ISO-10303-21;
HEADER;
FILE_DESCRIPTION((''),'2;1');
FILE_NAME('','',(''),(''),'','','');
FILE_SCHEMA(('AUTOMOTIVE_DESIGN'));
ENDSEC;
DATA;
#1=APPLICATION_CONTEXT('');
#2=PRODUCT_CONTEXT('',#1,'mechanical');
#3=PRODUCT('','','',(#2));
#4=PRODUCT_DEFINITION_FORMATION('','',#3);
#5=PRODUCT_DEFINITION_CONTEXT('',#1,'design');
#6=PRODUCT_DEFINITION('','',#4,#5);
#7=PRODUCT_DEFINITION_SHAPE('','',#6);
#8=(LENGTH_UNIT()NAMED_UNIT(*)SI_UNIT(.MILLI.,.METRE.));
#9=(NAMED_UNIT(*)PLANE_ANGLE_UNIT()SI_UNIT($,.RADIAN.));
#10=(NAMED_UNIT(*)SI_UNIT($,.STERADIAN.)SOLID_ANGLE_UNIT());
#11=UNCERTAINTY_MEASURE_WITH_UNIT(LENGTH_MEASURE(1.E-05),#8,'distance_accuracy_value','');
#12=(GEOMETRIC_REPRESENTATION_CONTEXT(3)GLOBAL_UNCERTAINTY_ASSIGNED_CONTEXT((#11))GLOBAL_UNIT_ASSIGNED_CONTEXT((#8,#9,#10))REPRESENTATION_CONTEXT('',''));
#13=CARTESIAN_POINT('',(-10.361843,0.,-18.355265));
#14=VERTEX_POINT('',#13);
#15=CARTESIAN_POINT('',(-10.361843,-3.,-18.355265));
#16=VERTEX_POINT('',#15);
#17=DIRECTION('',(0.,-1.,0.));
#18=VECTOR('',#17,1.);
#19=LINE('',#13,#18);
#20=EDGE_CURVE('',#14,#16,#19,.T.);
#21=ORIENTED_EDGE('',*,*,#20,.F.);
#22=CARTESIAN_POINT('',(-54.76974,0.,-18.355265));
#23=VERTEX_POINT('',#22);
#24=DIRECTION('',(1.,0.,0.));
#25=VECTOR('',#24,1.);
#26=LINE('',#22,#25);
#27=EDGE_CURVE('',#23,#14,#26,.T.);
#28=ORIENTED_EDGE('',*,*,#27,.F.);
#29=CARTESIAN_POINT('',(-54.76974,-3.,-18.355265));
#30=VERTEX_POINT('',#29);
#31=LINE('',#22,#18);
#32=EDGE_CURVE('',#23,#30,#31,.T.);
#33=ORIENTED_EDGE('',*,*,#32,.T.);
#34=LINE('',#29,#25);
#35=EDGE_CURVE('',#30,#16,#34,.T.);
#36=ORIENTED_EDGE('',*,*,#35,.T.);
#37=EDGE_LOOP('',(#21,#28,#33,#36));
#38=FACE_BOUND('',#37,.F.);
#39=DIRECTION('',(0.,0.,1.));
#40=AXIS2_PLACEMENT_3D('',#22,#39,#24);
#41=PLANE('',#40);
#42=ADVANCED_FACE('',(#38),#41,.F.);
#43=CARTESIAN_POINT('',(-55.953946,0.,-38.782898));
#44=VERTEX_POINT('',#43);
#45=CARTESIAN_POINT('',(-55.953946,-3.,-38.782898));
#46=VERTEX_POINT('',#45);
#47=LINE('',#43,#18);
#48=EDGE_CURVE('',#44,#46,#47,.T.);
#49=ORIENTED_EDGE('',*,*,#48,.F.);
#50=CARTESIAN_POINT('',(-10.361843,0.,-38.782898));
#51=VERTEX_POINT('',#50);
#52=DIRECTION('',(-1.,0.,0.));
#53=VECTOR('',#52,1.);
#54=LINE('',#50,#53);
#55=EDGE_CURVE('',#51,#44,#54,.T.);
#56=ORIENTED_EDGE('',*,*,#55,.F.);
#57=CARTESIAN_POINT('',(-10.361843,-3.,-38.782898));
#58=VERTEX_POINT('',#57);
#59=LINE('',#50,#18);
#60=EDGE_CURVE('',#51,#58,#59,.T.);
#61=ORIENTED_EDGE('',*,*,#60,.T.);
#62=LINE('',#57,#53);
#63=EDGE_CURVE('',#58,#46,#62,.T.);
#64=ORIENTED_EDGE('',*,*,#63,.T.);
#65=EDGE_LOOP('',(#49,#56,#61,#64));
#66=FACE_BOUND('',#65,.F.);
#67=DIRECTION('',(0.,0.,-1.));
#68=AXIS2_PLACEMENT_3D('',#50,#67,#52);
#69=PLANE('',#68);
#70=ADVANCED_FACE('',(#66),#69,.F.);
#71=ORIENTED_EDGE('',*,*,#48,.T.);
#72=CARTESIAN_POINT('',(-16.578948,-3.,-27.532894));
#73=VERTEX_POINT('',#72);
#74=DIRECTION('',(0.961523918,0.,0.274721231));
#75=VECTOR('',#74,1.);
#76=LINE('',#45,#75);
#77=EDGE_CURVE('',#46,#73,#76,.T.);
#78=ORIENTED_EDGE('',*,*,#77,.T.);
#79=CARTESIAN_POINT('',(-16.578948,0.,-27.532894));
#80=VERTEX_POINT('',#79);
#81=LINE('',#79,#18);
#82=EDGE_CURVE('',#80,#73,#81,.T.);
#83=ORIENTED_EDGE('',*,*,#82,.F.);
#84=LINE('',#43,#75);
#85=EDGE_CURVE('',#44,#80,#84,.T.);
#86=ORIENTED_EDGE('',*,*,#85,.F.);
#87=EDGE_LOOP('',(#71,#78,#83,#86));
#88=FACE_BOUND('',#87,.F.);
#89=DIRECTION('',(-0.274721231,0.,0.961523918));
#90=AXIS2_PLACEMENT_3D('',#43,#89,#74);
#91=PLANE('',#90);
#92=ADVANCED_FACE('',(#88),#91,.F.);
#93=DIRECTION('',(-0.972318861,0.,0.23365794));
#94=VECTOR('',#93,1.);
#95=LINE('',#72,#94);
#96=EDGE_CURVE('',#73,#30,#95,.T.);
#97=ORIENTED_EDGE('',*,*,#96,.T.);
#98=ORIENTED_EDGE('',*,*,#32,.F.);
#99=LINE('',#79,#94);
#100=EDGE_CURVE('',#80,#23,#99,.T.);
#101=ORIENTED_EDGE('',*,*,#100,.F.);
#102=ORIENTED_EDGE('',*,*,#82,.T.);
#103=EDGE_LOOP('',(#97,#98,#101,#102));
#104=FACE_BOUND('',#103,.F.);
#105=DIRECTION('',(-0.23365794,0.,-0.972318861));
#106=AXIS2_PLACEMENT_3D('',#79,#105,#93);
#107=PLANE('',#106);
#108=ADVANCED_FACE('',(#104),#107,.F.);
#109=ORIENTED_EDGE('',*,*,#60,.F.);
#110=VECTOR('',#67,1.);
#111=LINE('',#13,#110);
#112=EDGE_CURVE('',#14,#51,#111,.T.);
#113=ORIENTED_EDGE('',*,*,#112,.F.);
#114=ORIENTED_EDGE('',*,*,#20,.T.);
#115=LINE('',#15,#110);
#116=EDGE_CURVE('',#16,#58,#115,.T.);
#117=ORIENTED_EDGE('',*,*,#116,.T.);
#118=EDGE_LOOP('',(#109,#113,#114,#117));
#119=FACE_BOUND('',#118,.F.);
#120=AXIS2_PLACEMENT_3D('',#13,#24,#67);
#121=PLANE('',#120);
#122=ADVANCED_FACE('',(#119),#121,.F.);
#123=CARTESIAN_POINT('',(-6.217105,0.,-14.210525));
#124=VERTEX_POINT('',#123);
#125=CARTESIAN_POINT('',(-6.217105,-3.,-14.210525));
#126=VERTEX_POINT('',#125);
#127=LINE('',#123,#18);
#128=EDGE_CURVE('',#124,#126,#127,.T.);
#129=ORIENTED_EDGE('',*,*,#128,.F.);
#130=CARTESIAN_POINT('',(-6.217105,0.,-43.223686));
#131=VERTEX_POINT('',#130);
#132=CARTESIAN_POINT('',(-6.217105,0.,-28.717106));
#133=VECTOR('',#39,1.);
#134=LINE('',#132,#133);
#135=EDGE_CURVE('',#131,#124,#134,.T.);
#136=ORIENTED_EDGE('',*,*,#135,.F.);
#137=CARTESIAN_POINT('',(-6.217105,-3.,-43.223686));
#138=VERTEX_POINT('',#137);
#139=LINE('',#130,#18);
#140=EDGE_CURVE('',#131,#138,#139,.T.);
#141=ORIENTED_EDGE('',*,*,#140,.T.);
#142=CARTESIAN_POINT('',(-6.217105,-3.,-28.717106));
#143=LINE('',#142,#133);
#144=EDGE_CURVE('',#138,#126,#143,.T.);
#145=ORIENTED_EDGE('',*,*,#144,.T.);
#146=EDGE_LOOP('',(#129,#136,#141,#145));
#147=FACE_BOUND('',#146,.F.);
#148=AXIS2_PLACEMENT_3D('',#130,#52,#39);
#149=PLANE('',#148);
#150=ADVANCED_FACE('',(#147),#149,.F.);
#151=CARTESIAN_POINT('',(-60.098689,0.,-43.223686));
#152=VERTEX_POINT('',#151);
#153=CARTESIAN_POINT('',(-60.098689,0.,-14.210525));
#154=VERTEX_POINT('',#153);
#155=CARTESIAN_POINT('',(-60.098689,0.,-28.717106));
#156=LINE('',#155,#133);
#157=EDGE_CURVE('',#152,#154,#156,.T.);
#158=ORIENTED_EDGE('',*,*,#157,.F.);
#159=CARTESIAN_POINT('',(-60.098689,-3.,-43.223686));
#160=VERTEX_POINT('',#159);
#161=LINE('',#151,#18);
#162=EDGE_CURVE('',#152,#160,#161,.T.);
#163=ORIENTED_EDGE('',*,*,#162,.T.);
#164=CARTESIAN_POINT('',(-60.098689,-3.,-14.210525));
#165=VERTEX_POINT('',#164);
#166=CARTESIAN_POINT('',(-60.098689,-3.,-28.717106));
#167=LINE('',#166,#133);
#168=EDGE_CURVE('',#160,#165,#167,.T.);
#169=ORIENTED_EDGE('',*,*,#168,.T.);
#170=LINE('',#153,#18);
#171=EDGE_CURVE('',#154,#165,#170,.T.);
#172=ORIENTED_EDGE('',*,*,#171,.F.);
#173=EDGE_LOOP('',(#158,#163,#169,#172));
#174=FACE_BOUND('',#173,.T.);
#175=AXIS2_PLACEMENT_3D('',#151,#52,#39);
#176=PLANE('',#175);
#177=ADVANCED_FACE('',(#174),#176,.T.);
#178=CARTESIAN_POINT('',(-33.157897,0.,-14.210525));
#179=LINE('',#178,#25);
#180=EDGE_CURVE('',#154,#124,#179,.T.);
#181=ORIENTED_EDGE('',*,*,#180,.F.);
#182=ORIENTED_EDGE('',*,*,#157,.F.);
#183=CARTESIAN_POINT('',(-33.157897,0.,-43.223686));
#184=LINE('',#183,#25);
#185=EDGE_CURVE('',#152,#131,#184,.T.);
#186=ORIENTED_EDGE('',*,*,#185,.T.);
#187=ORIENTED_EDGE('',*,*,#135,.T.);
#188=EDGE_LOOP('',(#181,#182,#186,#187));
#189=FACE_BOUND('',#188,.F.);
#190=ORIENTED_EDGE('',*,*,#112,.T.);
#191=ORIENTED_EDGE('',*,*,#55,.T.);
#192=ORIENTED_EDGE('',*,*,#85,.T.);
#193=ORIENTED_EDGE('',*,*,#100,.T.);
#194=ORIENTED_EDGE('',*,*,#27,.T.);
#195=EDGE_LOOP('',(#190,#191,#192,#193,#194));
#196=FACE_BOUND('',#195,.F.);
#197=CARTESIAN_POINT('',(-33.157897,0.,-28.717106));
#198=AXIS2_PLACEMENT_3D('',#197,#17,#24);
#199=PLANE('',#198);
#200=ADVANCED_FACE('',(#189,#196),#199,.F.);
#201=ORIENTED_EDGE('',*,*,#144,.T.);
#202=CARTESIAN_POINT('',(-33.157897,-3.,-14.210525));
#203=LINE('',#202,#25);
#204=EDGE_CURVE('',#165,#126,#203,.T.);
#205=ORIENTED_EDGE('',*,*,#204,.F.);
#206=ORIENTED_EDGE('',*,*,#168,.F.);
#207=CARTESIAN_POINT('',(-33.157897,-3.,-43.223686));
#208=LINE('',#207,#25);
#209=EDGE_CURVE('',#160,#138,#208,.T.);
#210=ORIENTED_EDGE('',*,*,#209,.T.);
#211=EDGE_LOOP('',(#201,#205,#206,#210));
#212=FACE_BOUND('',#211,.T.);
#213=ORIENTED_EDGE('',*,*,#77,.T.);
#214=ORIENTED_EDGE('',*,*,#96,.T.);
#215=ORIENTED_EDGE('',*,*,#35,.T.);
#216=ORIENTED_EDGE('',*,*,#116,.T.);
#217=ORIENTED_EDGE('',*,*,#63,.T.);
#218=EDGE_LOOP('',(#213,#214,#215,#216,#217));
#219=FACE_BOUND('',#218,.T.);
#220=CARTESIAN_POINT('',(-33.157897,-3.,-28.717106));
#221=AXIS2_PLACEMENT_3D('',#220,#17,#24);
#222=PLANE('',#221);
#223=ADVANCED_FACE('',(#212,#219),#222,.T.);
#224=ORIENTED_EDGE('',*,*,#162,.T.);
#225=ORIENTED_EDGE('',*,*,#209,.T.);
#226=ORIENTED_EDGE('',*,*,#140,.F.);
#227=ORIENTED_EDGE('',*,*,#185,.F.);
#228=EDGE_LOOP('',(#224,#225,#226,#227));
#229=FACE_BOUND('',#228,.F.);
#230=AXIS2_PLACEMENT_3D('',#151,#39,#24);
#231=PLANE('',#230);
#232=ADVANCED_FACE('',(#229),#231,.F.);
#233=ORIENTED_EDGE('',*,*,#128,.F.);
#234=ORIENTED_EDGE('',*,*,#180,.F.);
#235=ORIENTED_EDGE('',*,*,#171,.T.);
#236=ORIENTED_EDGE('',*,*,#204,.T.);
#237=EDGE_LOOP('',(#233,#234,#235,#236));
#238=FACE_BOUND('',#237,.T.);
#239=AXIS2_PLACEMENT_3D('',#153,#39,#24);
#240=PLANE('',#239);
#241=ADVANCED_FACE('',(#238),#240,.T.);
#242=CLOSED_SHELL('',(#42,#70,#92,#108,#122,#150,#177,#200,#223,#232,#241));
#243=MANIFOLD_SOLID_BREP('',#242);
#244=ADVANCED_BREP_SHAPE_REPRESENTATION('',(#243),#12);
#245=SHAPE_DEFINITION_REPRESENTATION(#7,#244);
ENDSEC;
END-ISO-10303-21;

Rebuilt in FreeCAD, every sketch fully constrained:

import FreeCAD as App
import Part
import Sketcher

V = App.Vector
Q = App.Units.Quantity


def add_polygon(sketch, points):
    """Adds a closed chain of lines whose ends are joined by coincident constraints."""
    first, n = sketch.GeometryCount, len(points)
    for a, b in zip(points, points[1:] + points[:1]):
        sketch.addGeometry(Part.LineSegment(App.Vector(*a, 0), App.Vector(*b, 0)), False)
    for i in range(n):
        sketch.addConstraint(Sketcher.Constraint("Coincident", first + i, 2, first + (i + 1) % n, 1))

doc = App.newDocument("Part")
body = doc.addObject("PartDesign::Body", "Body")

sketch1 = body.newObject("Sketcher::SketchObject", "Sketch")
sketch1.AttachmentSupport = (doc.getObject("XZ_Plane"), [""])
sketch1.MapMode = "FlatFace"
add_polygon(sketch1, [(-60, -14), (-60, -43), (-6, -43), (-6, -14)])
add_polygon(sketch1, [(-17, -28), (-55, -18), (-10, -18), (-10, -39), (-56, -39)])
sketch1.addConstraint([
    Sketcher.Constraint("Vertical", 0),
    Sketcher.Constraint("Horizontal", 1),
    Sketcher.Constraint("Vertical", 2),
    Sketcher.Constraint("Horizontal", 3),
    Sketcher.Constraint("Horizontal", 5),
    Sketcher.Constraint("Vertical", 6),
    Sketcher.Constraint("Horizontal", 7),
    Sketcher.Constraint("DistanceY", 0, 2, 0, 1, Q("29.013161 mm")),
    Sketcher.Constraint("DistanceY", 6, 2, -1, 1, Q("38.782898 mm")),
    Sketcher.Constraint("DistanceX", 1, 1, 1, 2, Q("53.881584 mm")),
    Sketcher.Constraint("DistanceX", 5, 1, 5, 2, Q("44.407897 mm")),
    Sketcher.Constraint("DistanceX", 7, 2, 7, 1, Q("45.592103 mm")),
    Sketcher.Constraint("DistanceY", 6, 2, 6, 1, Q("20.427633 mm")),
    Sketcher.Constraint("DistanceX", 0, 2, -1, 1, Q("60.098689 mm")),
    Sketcher.Constraint("DistanceX", 4, 2, -1, 1, Q("54.76974 mm")),
    Sketcher.Constraint("DistanceX", 8, 2, -1, 1, Q("16.578948 mm")),
    Sketcher.Constraint("DistanceY", 4, 2, 3, 2, Q("4.14474 mm")),
    Sketcher.Constraint("DistanceY", 8, 2, 5, 2, Q("9.177629 mm")),
])
pad1 = body.newObject("PartDesign::Pad", "Pad")
pad1.Profile = sketch1
pad1.Length = 3

doc.recompute()
